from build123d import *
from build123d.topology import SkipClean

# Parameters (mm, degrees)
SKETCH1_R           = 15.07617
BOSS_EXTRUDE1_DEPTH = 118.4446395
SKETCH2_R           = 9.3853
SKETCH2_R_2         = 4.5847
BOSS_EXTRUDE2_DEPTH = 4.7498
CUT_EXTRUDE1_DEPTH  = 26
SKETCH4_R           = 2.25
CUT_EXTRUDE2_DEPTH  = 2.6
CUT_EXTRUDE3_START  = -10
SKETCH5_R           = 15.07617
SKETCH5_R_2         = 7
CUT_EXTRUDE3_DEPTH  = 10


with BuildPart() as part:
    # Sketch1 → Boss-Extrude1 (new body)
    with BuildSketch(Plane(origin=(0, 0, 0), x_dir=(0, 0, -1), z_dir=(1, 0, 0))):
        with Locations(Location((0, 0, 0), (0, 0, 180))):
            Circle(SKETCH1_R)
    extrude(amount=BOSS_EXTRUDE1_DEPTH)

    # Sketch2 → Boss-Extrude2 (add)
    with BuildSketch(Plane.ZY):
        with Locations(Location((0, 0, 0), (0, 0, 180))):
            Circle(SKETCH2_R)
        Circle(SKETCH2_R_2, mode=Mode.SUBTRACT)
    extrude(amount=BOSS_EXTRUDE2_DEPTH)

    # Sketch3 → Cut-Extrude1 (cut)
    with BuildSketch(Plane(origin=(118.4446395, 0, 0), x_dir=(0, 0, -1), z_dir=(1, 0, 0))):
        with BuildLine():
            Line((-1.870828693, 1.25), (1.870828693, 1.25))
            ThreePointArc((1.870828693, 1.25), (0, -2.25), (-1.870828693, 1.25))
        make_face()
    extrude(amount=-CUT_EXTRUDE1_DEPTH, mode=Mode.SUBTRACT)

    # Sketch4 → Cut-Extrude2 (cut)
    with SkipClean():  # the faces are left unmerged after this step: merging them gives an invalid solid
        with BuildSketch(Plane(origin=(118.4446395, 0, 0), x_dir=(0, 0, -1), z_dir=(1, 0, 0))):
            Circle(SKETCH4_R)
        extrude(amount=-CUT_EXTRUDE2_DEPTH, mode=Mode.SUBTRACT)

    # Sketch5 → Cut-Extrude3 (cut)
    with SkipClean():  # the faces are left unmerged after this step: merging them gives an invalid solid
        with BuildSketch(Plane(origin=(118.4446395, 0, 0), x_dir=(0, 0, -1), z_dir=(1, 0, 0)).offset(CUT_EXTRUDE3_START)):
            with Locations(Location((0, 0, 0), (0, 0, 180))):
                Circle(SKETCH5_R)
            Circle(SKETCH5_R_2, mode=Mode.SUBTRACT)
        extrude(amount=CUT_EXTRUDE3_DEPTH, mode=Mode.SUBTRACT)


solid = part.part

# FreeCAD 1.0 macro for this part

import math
import FreeCAD as App
import Part
import Sketcher

V = App.Vector

doc = App.newDocument("Part")
params = doc.addObject("Spreadsheet::Sheet", "Params")
for row, (alias, value) in enumerate([
    ("pad1_length", "118.444639 mm"),
    ("pad2_length", "4.7498 mm"),
    ("sketch3_radius", "2.25 mm"),
    ("pocket1_length", "26 mm"),
    ("sketch4_diameter", "4.5 mm"),
    ("pocket2_length", "2.6 mm"),
    ("sketch5_diameter", "14 mm"),
    ("pocket3_length", "10 mm"),
], start=1):
    params.set(f"A{row}", alias)
    params.set(f"B{row}", "=" + value)
    params.setAlias(f"B{row}", alias)

body = doc.addObject("PartDesign::Body", "Body")

sketch1 = body.newObject("Sketcher::SketchObject", "Sketch")
sketch1.AttachmentSupport = (doc.getObject("YZ_Plane"), [""])
sketch1.MapMode = "FlatFace"
sketch1.addGeometry(Part.Circle(V(0, 0, 0), V(0, 0, 1), 15), False)
sketch1.addConstraint([
    Sketcher.Constraint("Coincident", 0, 3, -1, 1),
    Sketcher.Constraint("Diameter", 0, 30.15234),
])
pad1 = body.newObject("PartDesign::Pad", "Pad")
pad1.Profile = sketch1
pad1.setExpression("Length", "Params.pad1_length")

sketch2 = body.newObject("Sketcher::SketchObject", "Sketch001")
sketch2.AttachmentSupport = (doc.getObject("YZ_Plane"), [""])
sketch2.MapMode = "FlatFace"
sketch2.addGeometry([
    Part.Circle(V(0, 0, 0), V(0, 0, 1), 9.4),
    Part.Circle(V(0, 0, 0), V(0, 0, 1), 4.6),
], False)
sketch2.addConstraint([
    Sketcher.Constraint("Coincident", 0, 3, -1, 1),
    Sketcher.Constraint("Coincident", 1, 3, -1, 1),
    Sketcher.Constraint("Diameter", 0, 18.7706),
    Sketcher.Constraint("Diameter", 1, 9.1694),
])
pad2 = body.newObject("PartDesign::Pad", "Pad001")
pad2.Profile = sketch2
pad2.setExpression("Length", "Params.pad2_length")
pad2.Reversed = True

sketch3 = body.newObject("Sketcher::SketchObject", "Sketch002")
sketch3.AttachmentSupport = (doc.getObject("YZ_Plane"), [""])
sketch3.MapMode = "FlatFace"
sketch3.AttachmentOffset = App.Placement(V(0, 0, 118.444639), App.Rotation())
sketch3.addGeometry([
    Part.LineSegment(V(1.2, -1.9, 0), V(1.2, 1.9, 0)),
    Part.ArcOfCircle(Part.Circle(V(0, 0, 0), V(0, 0, 1), 2.2), math.radians(56), math.radians(304)),
], False)
sketch3.addConstraint([
    Sketcher.Constraint("Coincident", 0, 1, 1, 2),
    Sketcher.Constraint("Coincident", 1, 1, 0, 2),
    Sketcher.Constraint("Vertical", 0),
    Sketcher.Constraint("Coincident", 1, 3, -1, 1),
    Sketcher.Constraint("Radius", 1, 2.25),
    Sketcher.Constraint("DistanceX", -1, 1, 0, 1, 1.25),
])
sketch3.setExpression("Constraints[4]", "Params.sketch3_radius")
pocket1 = body.newObject("PartDesign::Pocket", "Pocket")
pocket1.Profile = sketch3
pocket1.setExpression("Length", "Params.pocket1_length")

sketch4 = body.newObject("Sketcher::SketchObject", "Sketch003")
sketch4.AttachmentSupport = (doc.getObject("YZ_Plane"), [""])
sketch4.MapMode = "FlatFace"
sketch4.AttachmentOffset = App.Placement(V(0, 0, 118.444639), App.Rotation())
sketch4.addGeometry(Part.Circle(V(0, 0, 0), V(0, 0, 1), 2.2), False)
sketch4.addConstraint([
    Sketcher.Constraint("Coincident", 0, 3, -1, 1),
    Sketcher.Constraint("Diameter", 0, 4.5),
])
sketch4.setExpression("Constraints[1]", "Params.sketch4_diameter")
pocket2 = body.newObject("PartDesign::Pocket", "Pocket001")
pocket2.Profile = sketch4
pocket2.setExpression("Length", "Params.pocket2_length")

sketch5 = body.newObject("Sketcher::SketchObject", "Sketch004")
sketch5.AttachmentSupport = (doc.getObject("YZ_Plane"), [""])
sketch5.MapMode = "FlatFace"
sketch5.AttachmentOffset = App.Placement(V(0, 0, 108.444639), App.Rotation())
sketch5.addGeometry([
    Part.Circle(V(0, 0, 0), V(0, 0, 1), 15),
    Part.Circle(V(0, 0, 0), V(0, 0, 1), 7),
], False)
sketch5.addConstraint([
    Sketcher.Constraint("Coincident", 0, 3, -1, 1),
    Sketcher.Constraint("Coincident", 1, 3, -1, 1),
    Sketcher.Constraint("Diameter", 1, 14.0),
    Sketcher.Constraint("Diameter", 0, 30.15234),
])
sketch5.setExpression("Constraints[2]", "Params.sketch5_diameter")
pocket3 = body.newObject("PartDesign::Pocket", "Pocket002")
pocket3.Profile = sketch5
pocket3.setExpression("Length", "Params.pocket3_length")
pocket3.Reversed = True

doc.recompute()
